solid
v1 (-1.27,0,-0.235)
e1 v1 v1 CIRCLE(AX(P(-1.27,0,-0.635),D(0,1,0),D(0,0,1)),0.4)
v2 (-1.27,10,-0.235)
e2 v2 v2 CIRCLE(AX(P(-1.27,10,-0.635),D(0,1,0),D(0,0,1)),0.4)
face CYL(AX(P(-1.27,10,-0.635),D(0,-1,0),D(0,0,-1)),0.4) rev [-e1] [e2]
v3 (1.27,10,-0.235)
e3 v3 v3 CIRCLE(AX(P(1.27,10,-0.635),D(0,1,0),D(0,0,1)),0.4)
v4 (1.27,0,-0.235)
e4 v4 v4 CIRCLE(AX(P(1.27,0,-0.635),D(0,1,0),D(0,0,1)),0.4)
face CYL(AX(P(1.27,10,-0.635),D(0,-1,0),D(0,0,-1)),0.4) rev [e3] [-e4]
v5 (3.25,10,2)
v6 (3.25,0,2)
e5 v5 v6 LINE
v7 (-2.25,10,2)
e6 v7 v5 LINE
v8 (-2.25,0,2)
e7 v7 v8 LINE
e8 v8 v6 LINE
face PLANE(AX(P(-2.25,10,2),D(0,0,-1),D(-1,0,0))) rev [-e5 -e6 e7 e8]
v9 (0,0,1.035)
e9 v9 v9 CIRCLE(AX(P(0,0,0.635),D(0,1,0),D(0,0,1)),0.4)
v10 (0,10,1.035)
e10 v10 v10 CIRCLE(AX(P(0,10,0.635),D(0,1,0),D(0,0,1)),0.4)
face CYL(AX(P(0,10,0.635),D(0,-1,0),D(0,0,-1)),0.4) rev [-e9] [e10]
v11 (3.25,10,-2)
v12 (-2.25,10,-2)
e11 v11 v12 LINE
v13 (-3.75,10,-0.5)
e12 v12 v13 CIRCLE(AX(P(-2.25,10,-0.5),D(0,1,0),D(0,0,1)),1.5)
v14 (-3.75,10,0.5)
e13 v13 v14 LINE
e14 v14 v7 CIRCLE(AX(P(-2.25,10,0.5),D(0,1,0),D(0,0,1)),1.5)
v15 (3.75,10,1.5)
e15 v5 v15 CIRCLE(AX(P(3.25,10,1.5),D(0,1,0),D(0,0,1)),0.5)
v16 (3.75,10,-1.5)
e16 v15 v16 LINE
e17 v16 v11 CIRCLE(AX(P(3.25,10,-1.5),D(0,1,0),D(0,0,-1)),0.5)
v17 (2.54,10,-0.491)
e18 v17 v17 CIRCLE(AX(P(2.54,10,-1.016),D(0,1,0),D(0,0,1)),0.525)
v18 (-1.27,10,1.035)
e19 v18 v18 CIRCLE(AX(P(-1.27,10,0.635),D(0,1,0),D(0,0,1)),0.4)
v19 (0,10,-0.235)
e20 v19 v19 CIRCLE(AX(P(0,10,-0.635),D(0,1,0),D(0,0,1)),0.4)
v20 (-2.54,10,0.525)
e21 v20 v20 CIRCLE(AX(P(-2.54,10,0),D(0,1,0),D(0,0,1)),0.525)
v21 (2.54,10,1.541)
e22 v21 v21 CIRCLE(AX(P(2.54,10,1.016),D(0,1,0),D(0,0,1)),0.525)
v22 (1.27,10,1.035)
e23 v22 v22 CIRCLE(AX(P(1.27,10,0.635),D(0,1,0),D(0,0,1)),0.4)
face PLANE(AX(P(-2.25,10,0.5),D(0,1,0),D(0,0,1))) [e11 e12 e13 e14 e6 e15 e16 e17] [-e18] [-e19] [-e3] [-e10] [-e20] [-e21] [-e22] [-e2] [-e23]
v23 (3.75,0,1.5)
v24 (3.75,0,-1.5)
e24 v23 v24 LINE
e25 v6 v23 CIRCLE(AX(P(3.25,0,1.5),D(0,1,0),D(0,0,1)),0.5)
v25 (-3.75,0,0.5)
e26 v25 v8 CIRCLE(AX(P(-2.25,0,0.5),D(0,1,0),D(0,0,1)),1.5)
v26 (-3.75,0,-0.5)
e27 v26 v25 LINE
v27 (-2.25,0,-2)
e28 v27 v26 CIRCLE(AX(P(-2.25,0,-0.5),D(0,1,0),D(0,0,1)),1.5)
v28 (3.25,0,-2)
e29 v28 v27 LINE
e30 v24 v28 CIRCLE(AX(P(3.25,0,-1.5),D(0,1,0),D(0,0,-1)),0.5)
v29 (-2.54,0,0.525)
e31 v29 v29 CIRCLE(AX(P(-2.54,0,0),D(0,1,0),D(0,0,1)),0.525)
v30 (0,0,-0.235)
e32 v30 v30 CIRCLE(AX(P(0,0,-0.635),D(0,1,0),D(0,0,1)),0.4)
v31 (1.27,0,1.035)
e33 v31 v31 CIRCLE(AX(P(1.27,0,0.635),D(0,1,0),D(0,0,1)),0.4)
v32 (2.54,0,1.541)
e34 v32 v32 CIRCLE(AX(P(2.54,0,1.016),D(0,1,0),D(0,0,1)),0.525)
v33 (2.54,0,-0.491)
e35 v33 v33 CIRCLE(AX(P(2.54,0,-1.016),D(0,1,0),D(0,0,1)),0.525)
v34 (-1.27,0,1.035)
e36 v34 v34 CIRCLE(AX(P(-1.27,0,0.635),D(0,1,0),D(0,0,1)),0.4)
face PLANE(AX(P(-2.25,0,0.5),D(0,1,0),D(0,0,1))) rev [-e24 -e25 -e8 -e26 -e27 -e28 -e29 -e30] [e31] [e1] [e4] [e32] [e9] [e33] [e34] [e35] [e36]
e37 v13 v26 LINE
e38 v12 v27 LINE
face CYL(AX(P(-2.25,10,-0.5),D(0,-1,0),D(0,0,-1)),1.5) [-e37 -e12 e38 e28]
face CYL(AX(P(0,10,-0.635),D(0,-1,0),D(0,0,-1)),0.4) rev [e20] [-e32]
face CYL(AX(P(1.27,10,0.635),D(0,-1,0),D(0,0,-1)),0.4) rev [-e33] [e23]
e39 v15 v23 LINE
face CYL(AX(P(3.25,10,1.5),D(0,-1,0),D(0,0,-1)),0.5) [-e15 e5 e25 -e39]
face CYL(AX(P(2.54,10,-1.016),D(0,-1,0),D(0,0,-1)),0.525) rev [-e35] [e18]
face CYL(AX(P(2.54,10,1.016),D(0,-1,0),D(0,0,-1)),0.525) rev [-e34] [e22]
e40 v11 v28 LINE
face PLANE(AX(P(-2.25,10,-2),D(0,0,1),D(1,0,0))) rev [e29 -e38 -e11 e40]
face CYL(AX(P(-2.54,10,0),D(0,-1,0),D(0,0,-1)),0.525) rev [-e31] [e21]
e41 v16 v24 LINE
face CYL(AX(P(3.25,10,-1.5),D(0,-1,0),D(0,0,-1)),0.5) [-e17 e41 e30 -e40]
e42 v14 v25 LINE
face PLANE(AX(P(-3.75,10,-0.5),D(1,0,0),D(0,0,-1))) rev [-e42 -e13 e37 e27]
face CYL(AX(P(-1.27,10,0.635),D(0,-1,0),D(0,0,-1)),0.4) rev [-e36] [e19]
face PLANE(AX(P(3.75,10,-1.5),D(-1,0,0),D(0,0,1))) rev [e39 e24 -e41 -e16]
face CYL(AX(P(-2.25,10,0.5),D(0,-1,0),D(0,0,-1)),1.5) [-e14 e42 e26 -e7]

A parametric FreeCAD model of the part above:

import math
import FreeCAD as App
import Part
import Sketcher

V = App.Vector

doc = App.newDocument("Part")
params = doc.addObject("Spreadsheet::Sheet", "Params")
for row, (alias, value) in enumerate([
    ("sketch1_diameter", "0.8 mm"),
    ("sketch1_radius", "1.5 mm"),
    ("sketch1_radius2", "0.5 mm"),
    ("sketch1_diameter2", "1.05 mm"),
    ("sketch1_height", "1 mm"),
    ("pad1_length", "10 mm"),
], start=1):
    params.set(f"A{row}", alias)
    params.set(f"B{row}", "=" + value)
    params.setAlias(f"B{row}", alias)

body = doc.addObject("PartDesign::Body", "Body")

sketch1 = body.newObject("Sketcher::SketchObject", "Sketch")
sketch1.AttachmentSupport = (doc.getObject("XZ_Plane"), [""])
sketch1.MapMode = "FlatFace"
sketch1.addGeometry(Part.LineSegment(V(3.25, -2, 0), V(-2.25, -2, 0)), False)
sketch1.addGeometry(Part.ArcOfCircle(Part.Circle(V(-2.25, -0.5, 0), V(0, 0, 1), 1.5), math.radians(180), math.radians(270)), False)
sketch1.addGeometry(Part.LineSegment(V(-3.75, -0.5, 0), V(-3.75, 0.5, 0)), False)
sketch1.addGeometry(Part.ArcOfCircle(Part.Circle(V(-2.25, 0.5, 0), V(0, 0, 1), 1.5), math.radians(90), math.radians(180)), False)
sketch1.addGeometry(Part.LineSegment(V(-2.25, 2, 0), V(3.25, 2, 0)), False)
sketch1.addGeometry(Part.ArcOfCircle(Part.Circle(V(3.25, 1.5, 0), V(0, 0, 1), 0.5), math.radians(0), math.radians(90)), False)
sketch1.addGeometry(Part.LineSegment(V(3.75, 1.5, 0), V(3.75, -1.5, 0)), False)
sketch1.addGeometry(Part.ArcOfCircle(Part.Circle(V(3.25, -1.5, 0), V(0, 0, 1), 0.5), math.radians(-90), math.radians(0)), False)
sketch1.addGeometry(Part.Circle(V(2.54, 1.02, 0), V(0, 0, 1), 0.53), False)
sketch1.addGeometry(Part.Circle(V(1.27, 0.64, 0), V(0, 0, 1), 0.4), False)
sketch1.addGeometry(Part.Circle(V(0, 0.64, 0), V(0, 0, 1), 0.4), False)
sketch1.addGeometry(Part.Circle(V(-1.27, 0.64, 0), V(0, 0, 1), 0.4), False)
sketch1.addGeometry(Part.Circle(V(1.27, -0.64, 0), V(0, 0, 1), 0.4), False)
sketch1.addGeometry(Part.Circle(V(2.54, -1.02, 0), V(0, 0, 1), 0.53), False)
sketch1.addGeometry(Part.Circle(V(0, -0.64, 0), V(0, 0, 1), 0.4), False)
sketch1.addGeometry(Part.Circle(V(-1.27, -0.64, 0), V(0, 0, 1), 0.4), False)
sketch1.addGeometry(Part.Circle(V(-2.54, 0, 0), V(0, 0, 1), 0.53), False)
sketch1.addConstraint(Sketcher.Constraint("Tangent", 0, 2, 1, 2))
sketch1.addConstraint(Sketcher.Constraint("Tangent", 1, 1, 2, 1))
sketch1.addConstraint(Sketcher.Constraint("Tangent", 2, 2, 3, 2))
sketch1.addConstraint(Sketcher.Constraint("Tangent", 3, 1, 4, 1))
sketch1.addConstraint(Sketcher.Constraint("Tangent", 4, 2, 5, 2))
sketch1.addConstraint(Sketcher.Constraint("Tangent", 5, 1, 6, 1))
sketch1.addConstraint(Sketcher.Constraint("Tangent", 6, 2, 7, 2))
sketch1.addConstraint(Sketcher.Constraint("Tangent", 7, 1, 0, 1))
sketch1.addConstraint(Sketcher.Constraint("Horizontal", 0))
sketch1.addConstraint(Sketcher.Constraint("Vertical", 2))
sketch1.addConstraint(Sketcher.Constraint("Horizontal", 4))
sketch1.addConstraint(Sketcher.Constraint("Vertical", 6))
sketch1.addConstraint(Sketcher.Constraint("Equal", 1, 3))
sketch1.addConstraint(Sketcher.Constraint("Equal", 5, 7))
sketch1.addConstraint(Sketcher.Constraint("Equal", 9, 10))
sketch1.addConstraint(Sketcher.Constraint("Equal", 10, 11))
sketch1.addConstraint(Sketcher.Constraint("Equal", 11, 12))
sketch1.addConstraint(Sketcher.Constraint("Equal", 8, 13))
sketch1.addConstraint(Sketcher.Constraint("Equal", 12, 14))
sketch1.addConstraint(Sketcher.Constraint("Equal", 14, 15))
sketch1.addConstraint(Sketcher.Constraint("Equal", 13, 16))
sketch1.addConstraint(Sketcher.Constraint("Symmetric", 11, 3, 12, 3, -1, 1))
sketch1.addConstraint(Sketcher.Constraint("Symmetric", 10, 3, 14, 3, -1, 1))
sketch1.addConstraint(Sketcher.Constraint("Symmetric", 9, 3, 15, 3, -1, 1))
sketch1.addConstraint(Sketcher.Constraint("Symmetric", 9, 3, 11, 3, -2))
sketch1.addConstraint(Sketcher.Constraint("Symmetric", 8, 3, 13, 3, -1))
sketch1.addConstraint(Sketcher.Constraint("PointOnObject", 10, 3, -2))
sketch1.addConstraint(Sketcher.Constraint("PointOnObject", 16, 3, -1))
sketch1.addConstraint(Sketcher.Constraint("Horizontal", 9, 3, 10, 3))
sketch1.addConstraint(Sketcher.Constraint("Diameter", 9, 0.8))
sketch1.addConstraint(Sketcher.Constraint("Radius", 1, 1.5))
sketch1.addConstraint(Sketcher.Constraint("Radius", 5, 0.5))
sketch1.addConstraint(Sketcher.Constraint("Diameter", 8, 1.05))
sketch1.addConstraint(Sketcher.Constraint("DistanceY", 2, 1, 2, 2, 1.0))
sketch1.addConstraint(Sketcher.Constraint("DistanceX", 0, 2, 0, 1, 5.5))
sketch1.addConstraint(Sketcher.Constraint("DistanceY", 0, 2, -1, 1, 2.0))
sketch1.addConstraint(Sketcher.Constraint("DistanceX", 1, 3, -1, 1, 2.25))
sketch1.addConstraint(Sketcher.Constraint("DistanceX", -1, 1, 8, 3, 2.54))
sketch1.addConstraint(Sketcher.Constraint("DistanceX", -1, 1, 9, 3, 1.27))
sketch1.addConstraint(Sketcher.Constraint("DistanceX", 16, 3, -1, 1, 2.54))
sketch1.addConstraint(Sketcher.Constraint("DistanceY", 12, 3, 9, 3, 1.27))
sketch1.addConstraint(Sketcher.Constraint("DistanceY", -1, 1, 8, 3, 1.016))
sketch1.setExpression("Constraints[29]", "Params.sketch1_diameter")
sketch1.setExpression("Constraints[30]", "Params.sketch1_radius")
sketch1.setExpression("Constraints[31]", "Params.sketch1_radius2")
sketch1.setExpression("Constraints[32]", "Params.sketch1_diameter2")
sketch1.setExpression("Constraints[33]", "Params.sketch1_height")
pad1 = body.newObject("PartDesign::Pad", "Pad")
pad1.Profile = sketch1
pad1.setExpression("Length", "Params.pad1_length")
pad1.Reversed = True

doc.recompute()
